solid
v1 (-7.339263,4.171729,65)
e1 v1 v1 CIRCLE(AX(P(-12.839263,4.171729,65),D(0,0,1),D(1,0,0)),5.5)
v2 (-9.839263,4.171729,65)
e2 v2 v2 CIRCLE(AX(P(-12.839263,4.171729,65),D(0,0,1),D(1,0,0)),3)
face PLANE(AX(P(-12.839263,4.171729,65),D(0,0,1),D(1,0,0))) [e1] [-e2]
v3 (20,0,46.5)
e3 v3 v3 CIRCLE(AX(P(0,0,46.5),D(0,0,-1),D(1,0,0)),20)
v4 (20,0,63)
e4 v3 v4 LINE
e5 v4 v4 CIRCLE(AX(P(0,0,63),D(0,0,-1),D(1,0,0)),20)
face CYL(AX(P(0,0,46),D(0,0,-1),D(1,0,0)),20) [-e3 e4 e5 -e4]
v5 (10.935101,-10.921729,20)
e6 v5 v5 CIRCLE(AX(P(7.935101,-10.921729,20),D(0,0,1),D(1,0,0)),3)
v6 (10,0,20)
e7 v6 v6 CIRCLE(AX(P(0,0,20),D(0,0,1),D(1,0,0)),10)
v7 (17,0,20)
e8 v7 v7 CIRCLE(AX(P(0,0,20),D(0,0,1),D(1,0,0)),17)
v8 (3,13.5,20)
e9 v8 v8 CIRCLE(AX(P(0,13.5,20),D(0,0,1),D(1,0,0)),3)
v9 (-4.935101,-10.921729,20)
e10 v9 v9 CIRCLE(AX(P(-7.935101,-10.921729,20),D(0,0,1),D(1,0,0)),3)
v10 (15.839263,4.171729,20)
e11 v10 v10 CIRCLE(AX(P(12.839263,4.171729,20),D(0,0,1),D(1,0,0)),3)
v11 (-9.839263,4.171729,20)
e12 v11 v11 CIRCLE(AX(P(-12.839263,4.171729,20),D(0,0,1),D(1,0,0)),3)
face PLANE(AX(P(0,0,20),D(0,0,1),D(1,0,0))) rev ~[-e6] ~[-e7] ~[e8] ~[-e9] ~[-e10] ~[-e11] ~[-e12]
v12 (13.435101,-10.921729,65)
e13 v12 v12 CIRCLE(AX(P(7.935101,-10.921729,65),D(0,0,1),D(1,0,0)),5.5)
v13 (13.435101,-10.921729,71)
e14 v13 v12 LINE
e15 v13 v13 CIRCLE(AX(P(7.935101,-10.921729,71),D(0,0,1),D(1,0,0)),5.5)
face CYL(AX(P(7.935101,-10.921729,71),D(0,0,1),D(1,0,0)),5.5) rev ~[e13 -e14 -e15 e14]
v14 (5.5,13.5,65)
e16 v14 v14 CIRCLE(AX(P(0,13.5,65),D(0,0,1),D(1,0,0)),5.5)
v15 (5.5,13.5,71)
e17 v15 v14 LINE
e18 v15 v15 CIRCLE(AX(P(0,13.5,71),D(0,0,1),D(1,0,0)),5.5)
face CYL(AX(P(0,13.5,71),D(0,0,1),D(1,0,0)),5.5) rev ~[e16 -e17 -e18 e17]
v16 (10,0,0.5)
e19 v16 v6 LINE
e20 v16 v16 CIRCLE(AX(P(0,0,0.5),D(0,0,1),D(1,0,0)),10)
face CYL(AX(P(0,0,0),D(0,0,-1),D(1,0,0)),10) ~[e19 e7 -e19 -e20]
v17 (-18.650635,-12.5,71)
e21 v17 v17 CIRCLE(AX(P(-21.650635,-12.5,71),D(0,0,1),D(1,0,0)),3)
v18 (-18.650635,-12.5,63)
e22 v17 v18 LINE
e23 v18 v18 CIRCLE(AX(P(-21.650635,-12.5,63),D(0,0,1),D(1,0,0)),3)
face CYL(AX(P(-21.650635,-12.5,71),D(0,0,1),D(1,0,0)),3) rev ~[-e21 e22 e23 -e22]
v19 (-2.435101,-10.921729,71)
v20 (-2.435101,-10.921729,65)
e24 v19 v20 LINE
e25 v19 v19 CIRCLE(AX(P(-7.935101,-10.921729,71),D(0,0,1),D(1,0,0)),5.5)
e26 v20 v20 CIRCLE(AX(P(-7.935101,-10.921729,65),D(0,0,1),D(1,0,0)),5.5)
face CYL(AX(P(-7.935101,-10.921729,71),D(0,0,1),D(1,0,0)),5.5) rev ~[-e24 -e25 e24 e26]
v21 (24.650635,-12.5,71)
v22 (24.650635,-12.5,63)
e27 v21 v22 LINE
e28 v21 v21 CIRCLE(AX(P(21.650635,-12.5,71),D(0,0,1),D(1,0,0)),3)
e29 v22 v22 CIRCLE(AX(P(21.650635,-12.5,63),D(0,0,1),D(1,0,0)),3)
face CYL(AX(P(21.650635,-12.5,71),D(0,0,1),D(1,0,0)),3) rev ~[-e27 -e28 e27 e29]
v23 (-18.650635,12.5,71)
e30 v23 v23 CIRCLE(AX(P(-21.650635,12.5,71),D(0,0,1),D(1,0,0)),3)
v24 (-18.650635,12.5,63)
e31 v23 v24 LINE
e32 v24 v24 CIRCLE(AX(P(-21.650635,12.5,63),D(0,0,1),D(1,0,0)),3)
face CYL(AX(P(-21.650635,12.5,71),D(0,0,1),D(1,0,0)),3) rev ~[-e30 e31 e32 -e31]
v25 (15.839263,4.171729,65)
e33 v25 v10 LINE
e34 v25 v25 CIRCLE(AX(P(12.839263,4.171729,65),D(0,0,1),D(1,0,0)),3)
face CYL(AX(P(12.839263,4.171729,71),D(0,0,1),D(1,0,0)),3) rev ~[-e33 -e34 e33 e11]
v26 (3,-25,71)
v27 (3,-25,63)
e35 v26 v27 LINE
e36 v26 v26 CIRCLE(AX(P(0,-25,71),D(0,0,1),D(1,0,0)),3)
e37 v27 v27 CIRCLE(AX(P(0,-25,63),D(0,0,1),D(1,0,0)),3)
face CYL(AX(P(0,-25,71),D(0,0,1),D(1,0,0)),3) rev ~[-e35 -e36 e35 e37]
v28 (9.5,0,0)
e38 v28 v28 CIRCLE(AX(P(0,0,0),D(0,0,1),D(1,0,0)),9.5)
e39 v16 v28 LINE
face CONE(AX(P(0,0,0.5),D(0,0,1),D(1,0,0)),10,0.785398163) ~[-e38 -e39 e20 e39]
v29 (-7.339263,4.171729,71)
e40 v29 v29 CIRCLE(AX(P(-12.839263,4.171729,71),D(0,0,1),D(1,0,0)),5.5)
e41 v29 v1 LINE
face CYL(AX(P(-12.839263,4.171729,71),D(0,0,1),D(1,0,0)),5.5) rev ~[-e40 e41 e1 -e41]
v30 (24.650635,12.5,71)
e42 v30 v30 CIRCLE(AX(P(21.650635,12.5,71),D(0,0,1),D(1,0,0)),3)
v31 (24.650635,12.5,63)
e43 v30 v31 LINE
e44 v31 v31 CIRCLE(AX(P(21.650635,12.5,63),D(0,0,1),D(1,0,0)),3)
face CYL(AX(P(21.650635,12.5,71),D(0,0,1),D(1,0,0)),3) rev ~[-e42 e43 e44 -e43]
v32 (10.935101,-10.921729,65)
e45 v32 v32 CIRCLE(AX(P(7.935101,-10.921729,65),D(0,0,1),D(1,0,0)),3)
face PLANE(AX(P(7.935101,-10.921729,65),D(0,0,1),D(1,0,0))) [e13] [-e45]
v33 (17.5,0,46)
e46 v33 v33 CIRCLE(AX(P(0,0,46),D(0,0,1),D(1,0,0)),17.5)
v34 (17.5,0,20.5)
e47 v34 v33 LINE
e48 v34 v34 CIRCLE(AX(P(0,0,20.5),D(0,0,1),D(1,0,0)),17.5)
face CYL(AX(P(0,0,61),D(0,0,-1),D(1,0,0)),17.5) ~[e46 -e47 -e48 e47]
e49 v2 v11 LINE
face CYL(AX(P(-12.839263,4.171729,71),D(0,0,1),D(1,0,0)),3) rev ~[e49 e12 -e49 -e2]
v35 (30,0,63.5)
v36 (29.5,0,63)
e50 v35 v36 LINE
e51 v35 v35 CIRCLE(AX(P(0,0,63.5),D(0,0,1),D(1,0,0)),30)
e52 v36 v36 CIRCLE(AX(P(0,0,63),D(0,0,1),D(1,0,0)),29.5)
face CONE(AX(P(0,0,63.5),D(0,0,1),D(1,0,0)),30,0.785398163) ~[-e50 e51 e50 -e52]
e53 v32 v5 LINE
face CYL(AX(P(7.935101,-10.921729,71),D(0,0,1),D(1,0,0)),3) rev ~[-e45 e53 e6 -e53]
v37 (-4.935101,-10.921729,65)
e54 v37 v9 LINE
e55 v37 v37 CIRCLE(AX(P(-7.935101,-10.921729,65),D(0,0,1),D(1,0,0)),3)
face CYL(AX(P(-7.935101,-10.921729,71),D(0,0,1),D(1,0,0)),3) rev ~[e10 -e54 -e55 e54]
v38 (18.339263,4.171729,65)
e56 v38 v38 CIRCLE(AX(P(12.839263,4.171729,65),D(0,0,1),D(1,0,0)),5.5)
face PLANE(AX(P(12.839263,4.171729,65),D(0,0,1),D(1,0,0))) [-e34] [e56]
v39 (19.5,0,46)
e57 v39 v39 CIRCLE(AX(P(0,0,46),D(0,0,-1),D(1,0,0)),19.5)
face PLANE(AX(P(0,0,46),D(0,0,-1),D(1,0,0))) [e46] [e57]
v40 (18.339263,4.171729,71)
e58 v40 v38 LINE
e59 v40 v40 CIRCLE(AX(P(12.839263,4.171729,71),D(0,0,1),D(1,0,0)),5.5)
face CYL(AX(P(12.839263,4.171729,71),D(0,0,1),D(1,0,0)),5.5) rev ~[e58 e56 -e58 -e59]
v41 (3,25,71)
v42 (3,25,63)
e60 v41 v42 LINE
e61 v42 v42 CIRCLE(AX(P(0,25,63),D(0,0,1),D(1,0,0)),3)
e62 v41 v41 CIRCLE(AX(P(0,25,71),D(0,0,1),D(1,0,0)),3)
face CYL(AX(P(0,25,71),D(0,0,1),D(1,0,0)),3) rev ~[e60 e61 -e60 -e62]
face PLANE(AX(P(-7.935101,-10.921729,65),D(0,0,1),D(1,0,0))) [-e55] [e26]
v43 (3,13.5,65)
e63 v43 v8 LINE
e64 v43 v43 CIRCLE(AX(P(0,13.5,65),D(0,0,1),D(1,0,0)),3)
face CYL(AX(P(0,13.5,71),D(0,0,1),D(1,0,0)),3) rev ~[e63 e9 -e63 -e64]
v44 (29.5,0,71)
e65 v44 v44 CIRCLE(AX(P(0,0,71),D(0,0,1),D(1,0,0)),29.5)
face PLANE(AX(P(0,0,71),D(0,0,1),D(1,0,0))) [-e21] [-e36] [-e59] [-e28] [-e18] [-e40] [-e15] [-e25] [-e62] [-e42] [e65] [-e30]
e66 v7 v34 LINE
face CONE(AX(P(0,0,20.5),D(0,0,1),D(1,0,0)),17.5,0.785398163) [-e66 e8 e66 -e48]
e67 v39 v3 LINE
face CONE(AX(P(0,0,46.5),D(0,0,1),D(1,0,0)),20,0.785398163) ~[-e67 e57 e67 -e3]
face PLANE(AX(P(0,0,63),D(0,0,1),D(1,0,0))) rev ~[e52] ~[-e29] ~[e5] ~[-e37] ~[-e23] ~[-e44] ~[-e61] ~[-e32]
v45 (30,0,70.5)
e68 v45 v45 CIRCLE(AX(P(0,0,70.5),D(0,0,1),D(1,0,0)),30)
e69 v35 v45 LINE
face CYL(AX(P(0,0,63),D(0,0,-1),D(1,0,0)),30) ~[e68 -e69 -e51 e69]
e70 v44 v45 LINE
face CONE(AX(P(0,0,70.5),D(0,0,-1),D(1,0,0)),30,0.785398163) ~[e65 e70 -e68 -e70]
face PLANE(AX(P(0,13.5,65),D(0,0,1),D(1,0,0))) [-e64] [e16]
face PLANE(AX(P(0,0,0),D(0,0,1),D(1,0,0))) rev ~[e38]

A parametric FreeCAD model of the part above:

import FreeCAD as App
import Part
import Sketcher
from FreeCAD import Vector
Q = App.Units.Quantity


def edges_at(feature, points):
    """Names of the edges that pass closest to the given points."""
    edges = feature.Shape.Edges
    near = lambda p: min(range(len(edges)), key=lambda i: edges[i].distToShape(Part.Vertex(*p))[0])
    return sorted({f"Edge{near(p) + 1}" for p in points})

doc = App.newDocument("Part")
body = doc.addObject("PartDesign::Body", "Body")

# Sketch on XY plane
sketch1 = doc.addObject("Sketcher::SketchObject", "Sketch")
body.addObject(sketch1)
sketch1.AttachmentSupport = (doc.XY_Plane, [""])
sketch1.MapMode = "FlatFace"
sketch1.addGeometry(Part.Circle(Vector(0, 0, 0), Vector(0, 0, 1), 10), False)
sketch1.addConstraint([
    Sketcher.Constraint("Coincident", 0, 3, -1, 1),
    Sketcher.Constraint("Diameter", 0, Q("20 mm")),
])
pad1 = doc.addObject("PartDesign::Pad", "Pad")
body.addObject(pad1)
pad1.Profile = sketch1
pad1.Length = 20

# Sketch on XY plane
sketch2 = doc.addObject("Sketcher::SketchObject", "Sketch001")
body.addObject(sketch2)
sketch2.AttachmentSupport = (doc.XY_Plane, [""])
sketch2.MapMode = "FlatFace"
sketch2.AttachmentOffset = App.Placement(Vector(0, 0, 20), App.Rotation())
sketch2.addGeometry(Part.Circle(Vector(0, 0, 0), Vector(0, 0, 1), 17.5), False)
sketch2.addConstraint([
    Sketcher.Constraint("Coincident", 0, 3, -1, 1),
    Sketcher.Constraint("Diameter", 0, Q("35 mm")),
])
pad2 = doc.addObject("PartDesign::Pad", "Pad001")
body.addObject(pad2)
pad2.Profile = sketch2
pad2.Length = 41

# Sketch on XY plane
sketch3 = doc.addObject("Sketcher::SketchObject", "Sketch002")
body.addObject(sketch3)
sketch3.AttachmentSupport = (doc.XY_Plane, [""])
sketch3.MapMode = "FlatFace"
sketch3.AttachmentOffset = App.Placement(Vector(0, 0, 61), App.Rotation())
sketch3.addGeometry(Part.Circle(Vector(0, 0, 0), Vector(0, 0, 1), 17.5), False)
sketch3.addConstraint([
    Sketcher.Constraint("Coincident", 0, 3, -1, 1),
    Sketcher.Constraint("Diameter", 0, Q("35 mm")),
])
pad3 = doc.addObject("PartDesign::Pad", "Pad002")
body.addObject(pad3)
pad3.Profile = sketch3
pad3.Length = 10

# Sketch on XY plane
sketch4 = doc.addObject("Sketcher::SketchObject", "Sketch003")
body.addObject(sketch4)
sketch4.AttachmentSupport = (doc.XY_Plane, [""])
sketch4.MapMode = "FlatFace"
sketch4.AttachmentOffset = App.Placement(Vector(0, 0, 71), App.Rotation())
sketch4.addGeometry([
    Part.Circle(Vector(12.839263, 4.171729, 0), Vector(0, 0, 1), 3),  # 0
    Part.Circle(Vector(0, 13.5, 0), Vector(0, 0, 1), 3),  # 1
    Part.Circle(Vector(7.935101, -10.921729, 0), Vector(0, 0, 1), 3),  # 2
    Part.Circle(Vector(-7.935101, -10.921729, 0), Vector(0, 0, 1), 3),  # 3
    Part.Circle(Vector(-12.839263, 4.171729, 0), Vector(0, 0, 1), 3),  # 4
], False)
sketch4.addConstraint([
    Sketcher.Constraint("Equal", 0, 1),
    Sketcher.Constraint("Equal", 1, 2),
    Sketcher.Constraint("Equal", 2, 3),
    Sketcher.Constraint("Equal", 3, 4),
    Sketcher.Constraint("Symmetric", 2, 3, 3, 3, -2),
    Sketcher.Constraint("Symmetric", 0, 3, 4, 3, -2),
    Sketcher.Constraint("PointOnObject", 1, 3, -2),
    Sketcher.Constraint("Diameter", 0, Q("6 mm")),
    Sketcher.Constraint("DistanceY", -1, 1, 1, 3, Q("13.5 mm")),
    Sketcher.Constraint("DistanceX", -1, 1, 2, 3, Q("7.935101 mm")),
    Sketcher.Constraint("DistanceY", -1, 1, 0, 3, Q("4.171729 mm")),
    Sketcher.Constraint("DistanceY", 2, 3, -1, 1, Q("10.921729 mm")),
    Sketcher.Constraint("DistanceX", -1, 1, 0, 3, Q("12.839263 mm")),
])
pocket1 = doc.addObject("PartDesign::Pocket", "Pocket")
body.addObject(pocket1)
pocket1.Profile = sketch4
pocket1.Length = 60

# Sketch on XY plane
sketch5 = doc.addObject("Sketcher::SketchObject", "Sketch004")
body.addObject(sketch5)
sketch5.AttachmentSupport = (doc.XY_Plane, [""])
sketch5.MapMode = "FlatFace"
sketch5.AttachmentOffset = App.Placement(Vector(0, 0, 63), App.Rotation())
sketch5.addGeometry([
    Part.Circle(Vector(0, 0, 0), Vector(0, 0, 1), 30),
    Part.Circle(Vector(0, 0, 0), Vector(0, 0, 1), 17.5),
], False)
sketch5.addConstraint([
    Sketcher.Constraint("Coincident", 0, 3, -1, 1),
    Sketcher.Constraint("Coincident", 1, 3, -1, 1),
    Sketcher.Constraint("Diameter", 0, Q("60 mm")),
    Sketcher.Constraint("Diameter", 1, Q("35 mm")),
])
pad4 = doc.addObject("PartDesign::Pad", "Pad003")
body.addObject(pad4)
pad4.Profile = sketch5
pad4.Length = 8

# Sketch on XY plane
sketch6 = doc.addObject("Sketcher::SketchObject", "Sketch005")
body.addObject(sketch6)
sketch6.AttachmentSupport = (doc.XY_Plane, [""])
sketch6.MapMode = "FlatFace"
sketch6.AttachmentOffset = App.Placement(Vector(0, 0, 46), App.Rotation())
sketch6.addGeometry([
    Part.Circle(Vector(0, 0, 0), Vector(0, 0, 1), 20),
    Part.Circle(Vector(0, 0, 0), Vector(0, 0, 1), 17.5),
], False)
sketch6.addConstraint([
    Sketcher.Constraint("Coincident", 0, 3, -1, 1),
    Sketcher.Constraint("Coincident", 1, 3, -1, 1),
    Sketcher.Constraint("Diameter", 0, Q("40 mm")),
    Sketcher.Constraint("Diameter", 1, Q("35 mm")),
])
pad5 = doc.addObject("PartDesign::Pad", "Pad004")
body.addObject(pad5)
pad5.Profile = sketch6
pad5.Length = 17
doc.recompute()

chamfer = doc.addObject("PartDesign::Chamfer", "Chamfer")
body.addObject(chamfer)
chamfer.Base = (pad5, edges_at(pad5, [(-17.5, 0, 20)]))
chamfer.Size = 0.5
doc.recompute()

chamfer2 = doc.addObject("PartDesign::Chamfer", "Chamfer001")
body.addObject(chamfer2)
chamfer2.Base = (chamfer, edges_at(chamfer, [
    (-10, 0, 0),
    (-30, 0, 63),
    (-30, 0, 71),
    (-20, 0, 46),
]))
chamfer2.Size = 0.5

# Sketch on XY plane
sketch7 = doc.addObject("Sketcher::SketchObject", "Sketch006")
body.addObject(sketch7)
sketch7.AttachmentSupport = (doc.XY_Plane, [""])
sketch7.MapMode = "FlatFace"
sketch7.AttachmentOffset = App.Placement(Vector(0, 0, 71), App.Rotation())
sketch7.addGeometry([
    Part.Circle(Vector(0, 13.5, 0), Vector(0, 0, 1), 5.5),  # 0
    Part.Circle(Vector(12.839263, 4.171729, 0), Vector(0, 0, 1), 5.5),  # 1
    Part.Circle(Vector(7.935101, -10.921729, 0), Vector(0, 0, 1), 5.5),  # 2
    Part.Circle(Vector(-7.935101, -10.921729, 0), Vector(0, 0, 1), 5.5),  # 3
    Part.Circle(Vector(-12.839263, 4.171729, 0), Vector(0, 0, 1), 5.5),  # 4
], False)
sketch7.addConstraint([
    Sketcher.Constraint("Equal", 0, 1),
    Sketcher.Constraint("Equal", 1, 2),
    Sketcher.Constraint("Equal", 2, 3),
    Sketcher.Constraint("Equal", 3, 4),
    Sketcher.Constraint("Symmetric", 2, 3, 3, 3, -2),
    Sketcher.Constraint("Symmetric", 1, 3, 4, 3, -2),
    Sketcher.Constraint("PointOnObject", 0, 3, -2),
    Sketcher.Constraint("Diameter", 0, Q("11 mm")),
    Sketcher.Constraint("DistanceY", -1, 1, 0, 3, Q("13.5 mm")),
    Sketcher.Constraint("DistanceX", -1, 1, 2, 3, Q("7.935101 mm")),
    Sketcher.Constraint("DistanceY", -1, 1, 1, 3, Q("4.171729 mm")),
    Sketcher.Constraint("DistanceY", 2, 3, -1, 1, Q("10.921729 mm")),
    Sketcher.Constraint("DistanceX", -1, 1, 1, 3, Q("12.839263 mm")),
])
pocket2 = doc.addObject("PartDesign::Pocket", "Pocket001")
body.addObject(pocket2)
pocket2.Profile = sketch7
pocket2.Length = 6

# Sketch on XY plane
sketch8 = doc.addObject("Sketcher::SketchObject", "Sketch007")
body.addObject(sketch8)
sketch8.AttachmentSupport = (doc.XY_Plane, [""])
sketch8.MapMode = "FlatFace"
sketch8.AttachmentOffset = App.Placement(Vector(0, 0, 71), App.Rotation())
sketch8.addGeometry([
    Part.Circle(Vector(0, 25, 0), Vector(0, 0, 1), 3),  # 0
    Part.Circle(Vector(21.650635, 12.5, 0), Vector(0, 0, 1), 3),  # 1
    Part.Circle(Vector(21.650635, -12.5, 0), Vector(0, 0, 1), 3),  # 2
    Part.Circle(Vector(0, -25, 0), Vector(0, 0, 1), 3),  # 3
    Part.Circle(Vector(-21.650635, -12.5, 0), Vector(0, 0, 1), 3),  # 4
    Part.Circle(Vector(-21.650635, 12.5, 0), Vector(0, 0, 1), 3),  # 5
], False)
sketch8.addConstraint([
    Sketcher.Constraint("Equal", 0, 1),
    Sketcher.Constraint("Equal", 1, 2),
    Sketcher.Constraint("Equal", 2, 3),
    Sketcher.Constraint("Equal", 3, 4),
    Sketcher.Constraint("Equal", 4, 5),
    Sketcher.Constraint("Symmetric", 0, 3, 3, 3, -1, 1),
    Sketcher.Constraint("Symmetric", 1, 3, 4, 3, -1, 1),
    Sketcher.Constraint("Symmetric", 2, 3, 5, 3, -1, 1),
    Sketcher.Constraint("Symmetric", 2, 3, 4, 3, -2),
    Sketcher.Constraint("PointOnObject", 0, 3, -2),
    Sketcher.Constraint("Diameter", 0, Q("6 mm")),
    Sketcher.Constraint("DistanceY", -1, 1, 0, 3, Q("25 mm")),
    Sketcher.Constraint("DistanceY", 2, 3, 1, 3, Q("25 mm")),
    Sketcher.Constraint("DistanceX", 4, 3, 2, 3, Q("43.30127 mm")),
])
pocket3 = doc.addObject("PartDesign::Pocket", "Pocket002")
body.addObject(pocket3)
pocket3.Profile = sketch8
pocket3.Length = 8

doc.recompute()
